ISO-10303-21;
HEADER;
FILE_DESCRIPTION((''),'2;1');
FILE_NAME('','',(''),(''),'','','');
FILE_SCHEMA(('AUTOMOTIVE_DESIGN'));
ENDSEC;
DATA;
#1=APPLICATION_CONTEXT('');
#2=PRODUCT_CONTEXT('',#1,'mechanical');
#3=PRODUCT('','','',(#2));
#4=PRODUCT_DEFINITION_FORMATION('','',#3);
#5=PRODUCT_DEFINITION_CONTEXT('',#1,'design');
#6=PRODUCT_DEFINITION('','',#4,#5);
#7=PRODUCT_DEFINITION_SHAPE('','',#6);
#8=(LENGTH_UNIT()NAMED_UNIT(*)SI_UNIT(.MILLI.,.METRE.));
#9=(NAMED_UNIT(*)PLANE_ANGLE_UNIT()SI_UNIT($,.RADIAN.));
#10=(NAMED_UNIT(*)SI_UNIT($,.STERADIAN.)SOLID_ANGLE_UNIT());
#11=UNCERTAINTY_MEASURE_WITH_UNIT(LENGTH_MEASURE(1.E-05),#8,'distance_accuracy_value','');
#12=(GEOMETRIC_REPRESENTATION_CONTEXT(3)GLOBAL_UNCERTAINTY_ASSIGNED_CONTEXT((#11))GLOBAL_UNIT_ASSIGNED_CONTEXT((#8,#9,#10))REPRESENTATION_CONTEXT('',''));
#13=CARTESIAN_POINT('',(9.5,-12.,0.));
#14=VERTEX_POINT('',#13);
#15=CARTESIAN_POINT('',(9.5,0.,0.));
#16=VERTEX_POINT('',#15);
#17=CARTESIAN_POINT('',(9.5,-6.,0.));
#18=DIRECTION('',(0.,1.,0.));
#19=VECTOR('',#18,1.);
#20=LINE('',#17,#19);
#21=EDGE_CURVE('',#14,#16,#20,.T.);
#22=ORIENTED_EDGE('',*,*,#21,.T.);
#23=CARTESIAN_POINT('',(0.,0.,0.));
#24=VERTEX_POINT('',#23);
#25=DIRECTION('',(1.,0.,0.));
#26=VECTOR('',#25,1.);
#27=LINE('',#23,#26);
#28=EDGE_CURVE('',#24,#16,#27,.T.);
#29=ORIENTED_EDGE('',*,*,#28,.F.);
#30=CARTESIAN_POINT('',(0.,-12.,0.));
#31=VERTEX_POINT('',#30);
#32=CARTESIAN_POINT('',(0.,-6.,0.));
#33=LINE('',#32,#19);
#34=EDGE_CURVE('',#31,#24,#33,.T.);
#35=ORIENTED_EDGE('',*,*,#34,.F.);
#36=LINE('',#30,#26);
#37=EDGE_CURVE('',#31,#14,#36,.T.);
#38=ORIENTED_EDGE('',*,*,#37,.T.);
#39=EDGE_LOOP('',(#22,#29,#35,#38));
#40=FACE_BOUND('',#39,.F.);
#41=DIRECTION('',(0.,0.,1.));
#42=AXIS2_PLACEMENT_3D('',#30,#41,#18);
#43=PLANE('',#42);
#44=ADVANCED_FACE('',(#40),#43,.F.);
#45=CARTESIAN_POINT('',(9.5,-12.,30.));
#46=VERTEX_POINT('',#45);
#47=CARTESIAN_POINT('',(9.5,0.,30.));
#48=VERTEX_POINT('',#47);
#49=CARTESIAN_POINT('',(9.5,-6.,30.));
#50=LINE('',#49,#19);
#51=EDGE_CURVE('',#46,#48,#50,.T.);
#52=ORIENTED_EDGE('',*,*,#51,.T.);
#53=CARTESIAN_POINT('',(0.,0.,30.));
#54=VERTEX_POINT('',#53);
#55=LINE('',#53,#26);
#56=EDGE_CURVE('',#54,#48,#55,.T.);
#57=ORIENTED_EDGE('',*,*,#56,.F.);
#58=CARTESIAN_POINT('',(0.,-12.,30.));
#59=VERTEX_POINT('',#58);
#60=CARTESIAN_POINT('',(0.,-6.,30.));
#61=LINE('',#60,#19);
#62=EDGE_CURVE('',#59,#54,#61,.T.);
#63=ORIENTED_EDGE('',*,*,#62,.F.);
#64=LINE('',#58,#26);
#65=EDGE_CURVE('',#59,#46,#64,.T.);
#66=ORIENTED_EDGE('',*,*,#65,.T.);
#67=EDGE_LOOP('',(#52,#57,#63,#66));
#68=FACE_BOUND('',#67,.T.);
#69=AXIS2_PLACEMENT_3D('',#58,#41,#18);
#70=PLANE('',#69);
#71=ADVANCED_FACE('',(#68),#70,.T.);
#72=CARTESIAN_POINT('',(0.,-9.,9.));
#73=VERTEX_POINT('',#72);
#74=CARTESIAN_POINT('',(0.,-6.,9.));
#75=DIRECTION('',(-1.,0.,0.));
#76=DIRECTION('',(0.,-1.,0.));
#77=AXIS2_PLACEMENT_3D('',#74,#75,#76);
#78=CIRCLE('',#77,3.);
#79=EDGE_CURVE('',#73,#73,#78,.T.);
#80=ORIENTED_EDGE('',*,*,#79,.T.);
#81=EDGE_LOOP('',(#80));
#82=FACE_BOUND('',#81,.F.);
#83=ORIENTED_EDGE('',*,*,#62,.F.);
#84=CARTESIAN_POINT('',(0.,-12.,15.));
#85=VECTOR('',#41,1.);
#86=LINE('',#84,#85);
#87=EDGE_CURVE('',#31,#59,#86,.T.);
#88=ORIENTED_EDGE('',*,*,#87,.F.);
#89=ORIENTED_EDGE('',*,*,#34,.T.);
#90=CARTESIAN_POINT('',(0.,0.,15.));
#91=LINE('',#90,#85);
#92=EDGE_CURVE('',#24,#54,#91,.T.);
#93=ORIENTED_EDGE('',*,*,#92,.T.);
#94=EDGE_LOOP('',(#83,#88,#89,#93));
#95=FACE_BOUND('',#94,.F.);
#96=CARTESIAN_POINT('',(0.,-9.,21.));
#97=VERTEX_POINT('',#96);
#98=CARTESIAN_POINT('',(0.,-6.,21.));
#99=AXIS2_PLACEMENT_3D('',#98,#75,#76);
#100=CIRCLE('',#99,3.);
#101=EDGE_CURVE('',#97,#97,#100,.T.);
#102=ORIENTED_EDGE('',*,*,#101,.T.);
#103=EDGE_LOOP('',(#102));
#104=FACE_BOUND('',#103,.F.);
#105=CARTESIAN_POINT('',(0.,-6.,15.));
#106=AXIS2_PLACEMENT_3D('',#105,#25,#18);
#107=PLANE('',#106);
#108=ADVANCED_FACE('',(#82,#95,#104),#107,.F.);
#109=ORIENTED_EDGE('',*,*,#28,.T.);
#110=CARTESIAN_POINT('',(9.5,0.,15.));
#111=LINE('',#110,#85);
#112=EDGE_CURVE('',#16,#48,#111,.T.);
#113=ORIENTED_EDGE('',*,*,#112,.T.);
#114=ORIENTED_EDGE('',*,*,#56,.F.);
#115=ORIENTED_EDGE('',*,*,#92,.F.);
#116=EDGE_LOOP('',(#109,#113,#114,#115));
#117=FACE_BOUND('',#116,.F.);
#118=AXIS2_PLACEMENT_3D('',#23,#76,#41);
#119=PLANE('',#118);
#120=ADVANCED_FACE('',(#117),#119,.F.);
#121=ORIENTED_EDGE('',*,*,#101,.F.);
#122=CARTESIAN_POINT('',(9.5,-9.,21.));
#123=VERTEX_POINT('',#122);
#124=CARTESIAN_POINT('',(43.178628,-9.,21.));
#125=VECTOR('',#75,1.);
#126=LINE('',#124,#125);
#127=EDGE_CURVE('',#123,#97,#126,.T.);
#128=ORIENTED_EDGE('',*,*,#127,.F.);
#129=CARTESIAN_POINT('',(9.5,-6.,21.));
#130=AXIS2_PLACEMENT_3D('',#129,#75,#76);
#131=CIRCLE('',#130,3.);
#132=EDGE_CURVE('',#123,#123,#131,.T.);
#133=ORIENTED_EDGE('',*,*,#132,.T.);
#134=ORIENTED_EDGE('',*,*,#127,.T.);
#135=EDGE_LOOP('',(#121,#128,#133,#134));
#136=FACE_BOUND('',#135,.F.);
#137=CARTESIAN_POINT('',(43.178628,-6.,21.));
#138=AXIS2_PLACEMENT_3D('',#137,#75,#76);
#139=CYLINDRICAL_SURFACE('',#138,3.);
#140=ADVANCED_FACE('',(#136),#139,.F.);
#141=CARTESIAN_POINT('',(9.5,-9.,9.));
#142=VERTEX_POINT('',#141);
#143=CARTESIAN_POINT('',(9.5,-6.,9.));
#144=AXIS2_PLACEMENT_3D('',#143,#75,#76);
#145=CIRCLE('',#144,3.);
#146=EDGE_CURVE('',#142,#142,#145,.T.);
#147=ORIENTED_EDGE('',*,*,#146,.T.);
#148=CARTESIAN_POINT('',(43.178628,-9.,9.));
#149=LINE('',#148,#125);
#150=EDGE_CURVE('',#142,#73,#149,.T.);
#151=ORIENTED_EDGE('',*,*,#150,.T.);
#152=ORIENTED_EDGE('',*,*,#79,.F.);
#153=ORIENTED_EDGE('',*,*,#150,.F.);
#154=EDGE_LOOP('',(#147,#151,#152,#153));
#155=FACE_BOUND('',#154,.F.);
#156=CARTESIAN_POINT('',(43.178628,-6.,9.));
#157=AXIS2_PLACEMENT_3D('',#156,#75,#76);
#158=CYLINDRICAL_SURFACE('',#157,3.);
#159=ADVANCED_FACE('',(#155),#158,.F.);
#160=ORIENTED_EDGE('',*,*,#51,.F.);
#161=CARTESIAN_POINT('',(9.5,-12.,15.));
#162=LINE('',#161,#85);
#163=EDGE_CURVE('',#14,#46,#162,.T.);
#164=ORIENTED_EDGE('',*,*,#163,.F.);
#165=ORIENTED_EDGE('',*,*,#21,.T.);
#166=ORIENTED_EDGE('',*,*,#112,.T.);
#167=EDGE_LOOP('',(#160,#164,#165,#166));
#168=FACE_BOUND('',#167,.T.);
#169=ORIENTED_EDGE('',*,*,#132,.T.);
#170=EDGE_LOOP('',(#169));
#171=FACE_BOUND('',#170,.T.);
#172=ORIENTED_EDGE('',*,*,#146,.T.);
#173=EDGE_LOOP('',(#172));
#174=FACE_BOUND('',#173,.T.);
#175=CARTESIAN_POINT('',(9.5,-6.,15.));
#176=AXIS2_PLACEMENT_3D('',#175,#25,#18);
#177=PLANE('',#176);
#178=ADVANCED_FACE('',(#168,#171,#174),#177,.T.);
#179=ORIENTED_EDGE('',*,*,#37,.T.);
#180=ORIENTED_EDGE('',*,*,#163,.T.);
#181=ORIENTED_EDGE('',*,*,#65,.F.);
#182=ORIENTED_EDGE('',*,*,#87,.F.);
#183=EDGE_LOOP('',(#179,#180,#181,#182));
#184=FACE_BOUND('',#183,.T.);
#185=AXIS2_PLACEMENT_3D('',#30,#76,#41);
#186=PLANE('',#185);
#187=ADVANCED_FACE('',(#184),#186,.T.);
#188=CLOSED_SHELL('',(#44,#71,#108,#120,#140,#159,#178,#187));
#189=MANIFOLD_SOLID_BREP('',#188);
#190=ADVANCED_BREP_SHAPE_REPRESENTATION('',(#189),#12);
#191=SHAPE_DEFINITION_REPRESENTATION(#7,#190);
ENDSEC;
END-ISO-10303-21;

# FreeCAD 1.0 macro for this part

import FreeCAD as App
import Part
import Sketcher

V = App.Vector


def add_polygon(sketch, points):
    """Adds a closed chain of lines whose ends are joined by coincident constraints."""
    first, n = sketch.GeometryCount, len(points)
    for a, b in zip(points, points[1:] + points[:1]):
        sketch.addGeometry(Part.LineSegment(App.Vector(*a, 0), App.Vector(*b, 0)), False)
    for i in range(n):
        sketch.addConstraint(Sketcher.Constraint("Coincident", first + i, 2, first + (i + 1) % n, 1))

doc = App.newDocument("Part")
body = doc.addObject("PartDesign::Body", "Body")

# Sketch on YZ plane
sketch1 = body.newObject("Sketcher::SketchObject", "Sketch")
sketch1.AttachmentSupport = (doc.getObject("YZ_Plane"), [""])
sketch1.MapMode = "FlatFace"
add_polygon(sketch1, [(-12, 30), (-12, 0), (0, 0), (0, 30)])  # lines 0-3
sketch1.addConstraint(Sketcher.Constraint("Vertical", 0))
sketch1.addConstraint(Sketcher.Constraint("Horizontal", 1))
sketch1.addConstraint(Sketcher.Constraint("Vertical", 2))
sketch1.addConstraint(Sketcher.Constraint("Horizontal", 3))
sketch1.addConstraint(Sketcher.Constraint("Coincident", 1, 2, -1, 1))
sketch1.addConstraint(Sketcher.Constraint("DistanceX", 1, 1, 1, 2, 12.0))
sketch1.addConstraint(Sketcher.Constraint("DistanceY", 0, 2, 0, 1, 30.0))
pad1 = body.newObject("PartDesign::Pad", "Pad")
pad1.Profile = sketch1
pad1.Length = 9.5

# Sketch on YZ plane
sketch2 = body.newObject("Sketcher::SketchObject", "Sketch001")
sketch2.AttachmentSupport = (doc.getObject("YZ_Plane"), [""])
sketch2.MapMode = "FlatFace"
sketch2.AttachmentOffset = App.Placement(V(0, 0, 9.5), App.Rotation())
sketch2.addGeometry(Part.Circle(V(-6, 9, 0), V(0, 0, 1), 3), False)
sketch2.addConstraint(Sketcher.Constraint("Diameter", 0, 6.0))
sketch2.addConstraint(Sketcher.Constraint("DistanceX", 0, 3, -1, 1, 6.0))
sketch2.addConstraint(Sketcher.Constraint("DistanceY", -1, 1, 0, 3, 9.0))
doc.recompute()
hole = body.newObject("PartDesign::Hole", "Hole")
hole.Profile = sketch2
hole.ThreadType = "None"
hole.Diameter = 6
hole.DepthType = "ThroughAll"

# Sketch on YZ plane
sketch3 = body.newObject("Sketcher::SketchObject", "Sketch002")
sketch3.AttachmentSupport = (doc.getObject("YZ_Plane"), [""])
sketch3.MapMode = "FlatFace"
sketch3.AttachmentOffset = App.Placement(V(0, 0, 9.5), App.Rotation())
sketch3.addGeometry(Part.Circle(V(-6, 21, 0), V(0, 0, 1), 3), False)
sketch3.addConstraint(Sketcher.Constraint("Diameter", 0, 6.0))
sketch3.addConstraint(Sketcher.Constraint("DistanceX", 0, 3, -1, 1, 6.0))
sketch3.addConstraint(Sketcher.Constraint("DistanceY", -1, 1, 0, 3, 21.0))
doc.recompute()
hole2 = body.newObject("PartDesign::Hole", "Hole001")
hole2.Profile = sketch3
hole2.ThreadType = "None"
hole2.Diameter = 6
hole2.DepthType = "ThroughAll"

doc.recompute()
